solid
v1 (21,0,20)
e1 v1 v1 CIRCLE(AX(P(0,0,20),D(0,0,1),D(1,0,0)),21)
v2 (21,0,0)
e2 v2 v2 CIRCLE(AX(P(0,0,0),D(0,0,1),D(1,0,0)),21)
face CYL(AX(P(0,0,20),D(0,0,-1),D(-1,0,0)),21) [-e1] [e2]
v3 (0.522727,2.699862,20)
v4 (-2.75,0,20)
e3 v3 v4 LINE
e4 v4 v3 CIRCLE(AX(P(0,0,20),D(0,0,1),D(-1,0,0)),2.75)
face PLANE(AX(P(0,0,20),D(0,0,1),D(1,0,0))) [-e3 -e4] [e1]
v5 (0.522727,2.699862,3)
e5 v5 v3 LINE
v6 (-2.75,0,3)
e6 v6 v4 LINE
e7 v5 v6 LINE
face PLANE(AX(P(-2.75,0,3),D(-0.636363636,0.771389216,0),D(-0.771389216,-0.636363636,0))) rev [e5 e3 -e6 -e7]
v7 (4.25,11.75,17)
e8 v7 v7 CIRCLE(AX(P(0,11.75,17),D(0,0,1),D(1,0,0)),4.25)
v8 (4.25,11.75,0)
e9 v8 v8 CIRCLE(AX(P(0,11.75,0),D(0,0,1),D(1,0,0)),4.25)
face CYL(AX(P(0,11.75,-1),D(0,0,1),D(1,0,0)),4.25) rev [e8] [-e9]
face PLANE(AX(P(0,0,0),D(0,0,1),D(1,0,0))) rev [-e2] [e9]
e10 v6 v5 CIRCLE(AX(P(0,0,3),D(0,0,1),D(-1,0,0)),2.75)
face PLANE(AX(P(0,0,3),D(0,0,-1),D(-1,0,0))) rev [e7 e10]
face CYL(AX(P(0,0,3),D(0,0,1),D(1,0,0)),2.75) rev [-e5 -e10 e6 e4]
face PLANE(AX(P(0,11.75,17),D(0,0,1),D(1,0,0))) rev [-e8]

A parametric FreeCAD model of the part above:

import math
import FreeCAD as App
import Part
import Sketcher
from FreeCAD import Vector

doc = App.newDocument("Part")
body = doc.addObject("PartDesign::Body", "Body")

# Sketch on XY plane
sketch1 = body.newObject("Sketcher::SketchObject", "Sketch")
sketch1.AttachmentSupport = (doc.getObject("XY_Plane"), [""])
sketch1.MapMode = "FlatFace"
sketch1.addGeometry(Part.Circle(Vector(0, 0, 0), Vector(0, 0, 1), 21), False)
sketch1.addConstraint([
    Sketcher.Constraint("Coincident", 0, 3, -1, 1),
    Sketcher.Constraint("Diameter", 0, 42.0),
])
pad1 = body.newObject("PartDesign::Pad", "Pad")
pad1.Profile = sketch1
pad1.Length = 20

# Sketch on XY plane
sketch2 = body.newObject("Sketcher::SketchObject", "Sketch001")
sketch2.AttachmentSupport = (doc.getObject("XY_Plane"), [""])
sketch2.MapMode = "FlatFace"
sketch2.AttachmentOffset = App.Placement(Vector(0, 0, 20), App.Rotation())
sketch2.addGeometry([
    Part.LineSegment(Vector(0.5, 2.7, 0), Vector(-2.8, 0, 0)),
    Part.ArcOfCircle(Part.Circle(Vector(0, 0, 0), Vector(0, 0, 1), 2.8), math.radians(180), math.radians(439)),
], False)
sketch2.addConstraint([
    Sketcher.Constraint("Coincident", 0, 1, 1, 2),
    Sketcher.Constraint("Coincident", 1, 1, 0, 2),
    Sketcher.Constraint("Coincident", 1, 3, -1, 1),
    Sketcher.Constraint("PointOnObject", 1, 1, -1),
    Sketcher.Constraint("Radius", 1, 2.75),
    Sketcher.Constraint("Distance", 0, 4.242641),
])
pocket1 = body.newObject("PartDesign::Pocket", "Pocket")
pocket1.Profile = sketch2
pocket1.Length = 17

# Sketch on XY plane
sketch3 = body.newObject("Sketcher::SketchObject", "Sketch002")
sketch3.AttachmentSupport = (doc.getObject("XY_Plane"), [""])
sketch3.MapMode = "FlatFace"
sketch3.AttachmentOffset = App.Placement(Vector(0, 0, 17), App.Rotation())
sketch3.addGeometry(Part.Circle(Vector(0, 11.8, 0), Vector(0, 0, 1), 4.2), False)
sketch3.addConstraint([
    Sketcher.Constraint("PointOnObject", 0, 3, -2),
    Sketcher.Constraint("Diameter", 0, 8.5),
    Sketcher.Constraint("DistanceY", -1, 1, 0, 3, 11.75),
])
pocket2 = body.newObject("PartDesign::Pocket", "Pocket001")
pocket2.Profile = sketch3
pocket2.Length = 18

doc.recompute()
